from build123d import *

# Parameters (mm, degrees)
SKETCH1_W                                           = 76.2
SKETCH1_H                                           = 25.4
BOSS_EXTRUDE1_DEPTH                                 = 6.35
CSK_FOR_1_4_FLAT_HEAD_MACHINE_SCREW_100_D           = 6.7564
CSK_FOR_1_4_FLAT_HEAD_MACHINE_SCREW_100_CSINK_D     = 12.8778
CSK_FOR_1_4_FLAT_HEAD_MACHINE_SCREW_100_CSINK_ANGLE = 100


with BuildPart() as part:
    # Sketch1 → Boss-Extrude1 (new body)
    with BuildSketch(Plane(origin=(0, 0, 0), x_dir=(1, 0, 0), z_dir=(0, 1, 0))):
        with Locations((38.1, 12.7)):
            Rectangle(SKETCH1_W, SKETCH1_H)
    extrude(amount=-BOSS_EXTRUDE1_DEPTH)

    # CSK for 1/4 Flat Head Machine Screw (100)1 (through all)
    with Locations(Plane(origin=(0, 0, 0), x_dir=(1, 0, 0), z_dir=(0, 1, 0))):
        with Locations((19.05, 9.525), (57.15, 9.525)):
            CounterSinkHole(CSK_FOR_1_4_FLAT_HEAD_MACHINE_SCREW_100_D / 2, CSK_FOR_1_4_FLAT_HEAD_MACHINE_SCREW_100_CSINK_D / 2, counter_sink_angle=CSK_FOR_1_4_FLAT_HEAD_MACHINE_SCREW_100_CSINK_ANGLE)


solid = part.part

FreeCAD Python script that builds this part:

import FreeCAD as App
import Part
import Sketcher
from FreeCAD import Vector
Q = App.Units.Quantity


def add_polygon(sketch, points):
    """Adds a closed chain of lines whose ends are joined by coincident constraints."""
    first, n = sketch.GeometryCount, len(points)
    for a, b in zip(points, points[1:] + points[:1]):
        sketch.addGeometry(Part.LineSegment(App.Vector(*a, 0), App.Vector(*b, 0)), False)
    for i in range(n):
        sketch.addConstraint(Sketcher.Constraint("Coincident", first + i, 2, first + (i + 1) % n, 1))

doc = App.newDocument("Part")
body = doc.addObject("PartDesign::Body", "Body")

# Sketch on XZ plane
sketch1 = body.newObject("Sketcher::SketchObject", "Sketch")
sketch1.AttachmentSupport = (doc.getObject("XZ_Plane"), [""])
sketch1.MapMode = "FlatFace"
add_polygon(sketch1, [(0, -25), (0, 0), (76, 0), (76, -25)])  # lines 0-3
sketch1.addConstraint([
    Sketcher.Constraint("Vertical", 0),
    Sketcher.Constraint("Horizontal", 1),
    Sketcher.Constraint("Vertical", 2),
    Sketcher.Constraint("Horizontal", 3),
    Sketcher.Constraint("Coincident", 0, 2, -1, 1),
    Sketcher.Constraint("DistanceX", 1, 1, 1, 2, Q("3 in")),
    Sketcher.Constraint("DistanceY", 0, 1, 0, 2, Q("1 in")),
])
pad1 = body.newObject("PartDesign::Pad", "Pad")
pad1.Profile = sketch1
pad1.Length = Q("0.25 in")

# Sketch on XZ plane
sketch2 = body.newObject("Sketcher::SketchObject", "Sketch001")
sketch2.AttachmentSupport = (doc.getObject("XZ_Plane"), [""])
sketch2.MapMode = "FlatFace"
sketch2.addGeometry([
    Part.Circle(Vector(19.1, -9.5, 0), Vector(0, 0, 1), 3.4),
    Part.Circle(Vector(57.1, -9.5, 0), Vector(0, 0, 1), 3.4),
], False)
sketch2.addConstraint([
    Sketcher.Constraint("Equal", 0, 1),
    Sketcher.Constraint("Horizontal", 0, 3, 1, 3),
    Sketcher.Constraint("Diameter", 0, Q("0.266 in")),
    Sketcher.Constraint("DistanceX", 0, 3, 1, 3, Q("1.5 in")),
    Sketcher.Constraint("DistanceX", -1, 1, 0, 3, Q("0.75 in")),
    Sketcher.Constraint("DistanceY", 0, 3, -1, 1, Q("0.375 in")),
])
doc.recompute()
hole = body.newObject("PartDesign::Hole", "Hole")
hole.Profile = sketch2
hole.ThreadType = "None"
hole.Diameter = Q("0.266 in")
hole.DepthType = "ThroughAll"
hole.HoleCutType = "Countersink"
hole.HoleCutDiameter = Q("0.507 in")
hole.HoleCutCountersinkAngle = 100
hole.Reversed = True

doc.recompute()
